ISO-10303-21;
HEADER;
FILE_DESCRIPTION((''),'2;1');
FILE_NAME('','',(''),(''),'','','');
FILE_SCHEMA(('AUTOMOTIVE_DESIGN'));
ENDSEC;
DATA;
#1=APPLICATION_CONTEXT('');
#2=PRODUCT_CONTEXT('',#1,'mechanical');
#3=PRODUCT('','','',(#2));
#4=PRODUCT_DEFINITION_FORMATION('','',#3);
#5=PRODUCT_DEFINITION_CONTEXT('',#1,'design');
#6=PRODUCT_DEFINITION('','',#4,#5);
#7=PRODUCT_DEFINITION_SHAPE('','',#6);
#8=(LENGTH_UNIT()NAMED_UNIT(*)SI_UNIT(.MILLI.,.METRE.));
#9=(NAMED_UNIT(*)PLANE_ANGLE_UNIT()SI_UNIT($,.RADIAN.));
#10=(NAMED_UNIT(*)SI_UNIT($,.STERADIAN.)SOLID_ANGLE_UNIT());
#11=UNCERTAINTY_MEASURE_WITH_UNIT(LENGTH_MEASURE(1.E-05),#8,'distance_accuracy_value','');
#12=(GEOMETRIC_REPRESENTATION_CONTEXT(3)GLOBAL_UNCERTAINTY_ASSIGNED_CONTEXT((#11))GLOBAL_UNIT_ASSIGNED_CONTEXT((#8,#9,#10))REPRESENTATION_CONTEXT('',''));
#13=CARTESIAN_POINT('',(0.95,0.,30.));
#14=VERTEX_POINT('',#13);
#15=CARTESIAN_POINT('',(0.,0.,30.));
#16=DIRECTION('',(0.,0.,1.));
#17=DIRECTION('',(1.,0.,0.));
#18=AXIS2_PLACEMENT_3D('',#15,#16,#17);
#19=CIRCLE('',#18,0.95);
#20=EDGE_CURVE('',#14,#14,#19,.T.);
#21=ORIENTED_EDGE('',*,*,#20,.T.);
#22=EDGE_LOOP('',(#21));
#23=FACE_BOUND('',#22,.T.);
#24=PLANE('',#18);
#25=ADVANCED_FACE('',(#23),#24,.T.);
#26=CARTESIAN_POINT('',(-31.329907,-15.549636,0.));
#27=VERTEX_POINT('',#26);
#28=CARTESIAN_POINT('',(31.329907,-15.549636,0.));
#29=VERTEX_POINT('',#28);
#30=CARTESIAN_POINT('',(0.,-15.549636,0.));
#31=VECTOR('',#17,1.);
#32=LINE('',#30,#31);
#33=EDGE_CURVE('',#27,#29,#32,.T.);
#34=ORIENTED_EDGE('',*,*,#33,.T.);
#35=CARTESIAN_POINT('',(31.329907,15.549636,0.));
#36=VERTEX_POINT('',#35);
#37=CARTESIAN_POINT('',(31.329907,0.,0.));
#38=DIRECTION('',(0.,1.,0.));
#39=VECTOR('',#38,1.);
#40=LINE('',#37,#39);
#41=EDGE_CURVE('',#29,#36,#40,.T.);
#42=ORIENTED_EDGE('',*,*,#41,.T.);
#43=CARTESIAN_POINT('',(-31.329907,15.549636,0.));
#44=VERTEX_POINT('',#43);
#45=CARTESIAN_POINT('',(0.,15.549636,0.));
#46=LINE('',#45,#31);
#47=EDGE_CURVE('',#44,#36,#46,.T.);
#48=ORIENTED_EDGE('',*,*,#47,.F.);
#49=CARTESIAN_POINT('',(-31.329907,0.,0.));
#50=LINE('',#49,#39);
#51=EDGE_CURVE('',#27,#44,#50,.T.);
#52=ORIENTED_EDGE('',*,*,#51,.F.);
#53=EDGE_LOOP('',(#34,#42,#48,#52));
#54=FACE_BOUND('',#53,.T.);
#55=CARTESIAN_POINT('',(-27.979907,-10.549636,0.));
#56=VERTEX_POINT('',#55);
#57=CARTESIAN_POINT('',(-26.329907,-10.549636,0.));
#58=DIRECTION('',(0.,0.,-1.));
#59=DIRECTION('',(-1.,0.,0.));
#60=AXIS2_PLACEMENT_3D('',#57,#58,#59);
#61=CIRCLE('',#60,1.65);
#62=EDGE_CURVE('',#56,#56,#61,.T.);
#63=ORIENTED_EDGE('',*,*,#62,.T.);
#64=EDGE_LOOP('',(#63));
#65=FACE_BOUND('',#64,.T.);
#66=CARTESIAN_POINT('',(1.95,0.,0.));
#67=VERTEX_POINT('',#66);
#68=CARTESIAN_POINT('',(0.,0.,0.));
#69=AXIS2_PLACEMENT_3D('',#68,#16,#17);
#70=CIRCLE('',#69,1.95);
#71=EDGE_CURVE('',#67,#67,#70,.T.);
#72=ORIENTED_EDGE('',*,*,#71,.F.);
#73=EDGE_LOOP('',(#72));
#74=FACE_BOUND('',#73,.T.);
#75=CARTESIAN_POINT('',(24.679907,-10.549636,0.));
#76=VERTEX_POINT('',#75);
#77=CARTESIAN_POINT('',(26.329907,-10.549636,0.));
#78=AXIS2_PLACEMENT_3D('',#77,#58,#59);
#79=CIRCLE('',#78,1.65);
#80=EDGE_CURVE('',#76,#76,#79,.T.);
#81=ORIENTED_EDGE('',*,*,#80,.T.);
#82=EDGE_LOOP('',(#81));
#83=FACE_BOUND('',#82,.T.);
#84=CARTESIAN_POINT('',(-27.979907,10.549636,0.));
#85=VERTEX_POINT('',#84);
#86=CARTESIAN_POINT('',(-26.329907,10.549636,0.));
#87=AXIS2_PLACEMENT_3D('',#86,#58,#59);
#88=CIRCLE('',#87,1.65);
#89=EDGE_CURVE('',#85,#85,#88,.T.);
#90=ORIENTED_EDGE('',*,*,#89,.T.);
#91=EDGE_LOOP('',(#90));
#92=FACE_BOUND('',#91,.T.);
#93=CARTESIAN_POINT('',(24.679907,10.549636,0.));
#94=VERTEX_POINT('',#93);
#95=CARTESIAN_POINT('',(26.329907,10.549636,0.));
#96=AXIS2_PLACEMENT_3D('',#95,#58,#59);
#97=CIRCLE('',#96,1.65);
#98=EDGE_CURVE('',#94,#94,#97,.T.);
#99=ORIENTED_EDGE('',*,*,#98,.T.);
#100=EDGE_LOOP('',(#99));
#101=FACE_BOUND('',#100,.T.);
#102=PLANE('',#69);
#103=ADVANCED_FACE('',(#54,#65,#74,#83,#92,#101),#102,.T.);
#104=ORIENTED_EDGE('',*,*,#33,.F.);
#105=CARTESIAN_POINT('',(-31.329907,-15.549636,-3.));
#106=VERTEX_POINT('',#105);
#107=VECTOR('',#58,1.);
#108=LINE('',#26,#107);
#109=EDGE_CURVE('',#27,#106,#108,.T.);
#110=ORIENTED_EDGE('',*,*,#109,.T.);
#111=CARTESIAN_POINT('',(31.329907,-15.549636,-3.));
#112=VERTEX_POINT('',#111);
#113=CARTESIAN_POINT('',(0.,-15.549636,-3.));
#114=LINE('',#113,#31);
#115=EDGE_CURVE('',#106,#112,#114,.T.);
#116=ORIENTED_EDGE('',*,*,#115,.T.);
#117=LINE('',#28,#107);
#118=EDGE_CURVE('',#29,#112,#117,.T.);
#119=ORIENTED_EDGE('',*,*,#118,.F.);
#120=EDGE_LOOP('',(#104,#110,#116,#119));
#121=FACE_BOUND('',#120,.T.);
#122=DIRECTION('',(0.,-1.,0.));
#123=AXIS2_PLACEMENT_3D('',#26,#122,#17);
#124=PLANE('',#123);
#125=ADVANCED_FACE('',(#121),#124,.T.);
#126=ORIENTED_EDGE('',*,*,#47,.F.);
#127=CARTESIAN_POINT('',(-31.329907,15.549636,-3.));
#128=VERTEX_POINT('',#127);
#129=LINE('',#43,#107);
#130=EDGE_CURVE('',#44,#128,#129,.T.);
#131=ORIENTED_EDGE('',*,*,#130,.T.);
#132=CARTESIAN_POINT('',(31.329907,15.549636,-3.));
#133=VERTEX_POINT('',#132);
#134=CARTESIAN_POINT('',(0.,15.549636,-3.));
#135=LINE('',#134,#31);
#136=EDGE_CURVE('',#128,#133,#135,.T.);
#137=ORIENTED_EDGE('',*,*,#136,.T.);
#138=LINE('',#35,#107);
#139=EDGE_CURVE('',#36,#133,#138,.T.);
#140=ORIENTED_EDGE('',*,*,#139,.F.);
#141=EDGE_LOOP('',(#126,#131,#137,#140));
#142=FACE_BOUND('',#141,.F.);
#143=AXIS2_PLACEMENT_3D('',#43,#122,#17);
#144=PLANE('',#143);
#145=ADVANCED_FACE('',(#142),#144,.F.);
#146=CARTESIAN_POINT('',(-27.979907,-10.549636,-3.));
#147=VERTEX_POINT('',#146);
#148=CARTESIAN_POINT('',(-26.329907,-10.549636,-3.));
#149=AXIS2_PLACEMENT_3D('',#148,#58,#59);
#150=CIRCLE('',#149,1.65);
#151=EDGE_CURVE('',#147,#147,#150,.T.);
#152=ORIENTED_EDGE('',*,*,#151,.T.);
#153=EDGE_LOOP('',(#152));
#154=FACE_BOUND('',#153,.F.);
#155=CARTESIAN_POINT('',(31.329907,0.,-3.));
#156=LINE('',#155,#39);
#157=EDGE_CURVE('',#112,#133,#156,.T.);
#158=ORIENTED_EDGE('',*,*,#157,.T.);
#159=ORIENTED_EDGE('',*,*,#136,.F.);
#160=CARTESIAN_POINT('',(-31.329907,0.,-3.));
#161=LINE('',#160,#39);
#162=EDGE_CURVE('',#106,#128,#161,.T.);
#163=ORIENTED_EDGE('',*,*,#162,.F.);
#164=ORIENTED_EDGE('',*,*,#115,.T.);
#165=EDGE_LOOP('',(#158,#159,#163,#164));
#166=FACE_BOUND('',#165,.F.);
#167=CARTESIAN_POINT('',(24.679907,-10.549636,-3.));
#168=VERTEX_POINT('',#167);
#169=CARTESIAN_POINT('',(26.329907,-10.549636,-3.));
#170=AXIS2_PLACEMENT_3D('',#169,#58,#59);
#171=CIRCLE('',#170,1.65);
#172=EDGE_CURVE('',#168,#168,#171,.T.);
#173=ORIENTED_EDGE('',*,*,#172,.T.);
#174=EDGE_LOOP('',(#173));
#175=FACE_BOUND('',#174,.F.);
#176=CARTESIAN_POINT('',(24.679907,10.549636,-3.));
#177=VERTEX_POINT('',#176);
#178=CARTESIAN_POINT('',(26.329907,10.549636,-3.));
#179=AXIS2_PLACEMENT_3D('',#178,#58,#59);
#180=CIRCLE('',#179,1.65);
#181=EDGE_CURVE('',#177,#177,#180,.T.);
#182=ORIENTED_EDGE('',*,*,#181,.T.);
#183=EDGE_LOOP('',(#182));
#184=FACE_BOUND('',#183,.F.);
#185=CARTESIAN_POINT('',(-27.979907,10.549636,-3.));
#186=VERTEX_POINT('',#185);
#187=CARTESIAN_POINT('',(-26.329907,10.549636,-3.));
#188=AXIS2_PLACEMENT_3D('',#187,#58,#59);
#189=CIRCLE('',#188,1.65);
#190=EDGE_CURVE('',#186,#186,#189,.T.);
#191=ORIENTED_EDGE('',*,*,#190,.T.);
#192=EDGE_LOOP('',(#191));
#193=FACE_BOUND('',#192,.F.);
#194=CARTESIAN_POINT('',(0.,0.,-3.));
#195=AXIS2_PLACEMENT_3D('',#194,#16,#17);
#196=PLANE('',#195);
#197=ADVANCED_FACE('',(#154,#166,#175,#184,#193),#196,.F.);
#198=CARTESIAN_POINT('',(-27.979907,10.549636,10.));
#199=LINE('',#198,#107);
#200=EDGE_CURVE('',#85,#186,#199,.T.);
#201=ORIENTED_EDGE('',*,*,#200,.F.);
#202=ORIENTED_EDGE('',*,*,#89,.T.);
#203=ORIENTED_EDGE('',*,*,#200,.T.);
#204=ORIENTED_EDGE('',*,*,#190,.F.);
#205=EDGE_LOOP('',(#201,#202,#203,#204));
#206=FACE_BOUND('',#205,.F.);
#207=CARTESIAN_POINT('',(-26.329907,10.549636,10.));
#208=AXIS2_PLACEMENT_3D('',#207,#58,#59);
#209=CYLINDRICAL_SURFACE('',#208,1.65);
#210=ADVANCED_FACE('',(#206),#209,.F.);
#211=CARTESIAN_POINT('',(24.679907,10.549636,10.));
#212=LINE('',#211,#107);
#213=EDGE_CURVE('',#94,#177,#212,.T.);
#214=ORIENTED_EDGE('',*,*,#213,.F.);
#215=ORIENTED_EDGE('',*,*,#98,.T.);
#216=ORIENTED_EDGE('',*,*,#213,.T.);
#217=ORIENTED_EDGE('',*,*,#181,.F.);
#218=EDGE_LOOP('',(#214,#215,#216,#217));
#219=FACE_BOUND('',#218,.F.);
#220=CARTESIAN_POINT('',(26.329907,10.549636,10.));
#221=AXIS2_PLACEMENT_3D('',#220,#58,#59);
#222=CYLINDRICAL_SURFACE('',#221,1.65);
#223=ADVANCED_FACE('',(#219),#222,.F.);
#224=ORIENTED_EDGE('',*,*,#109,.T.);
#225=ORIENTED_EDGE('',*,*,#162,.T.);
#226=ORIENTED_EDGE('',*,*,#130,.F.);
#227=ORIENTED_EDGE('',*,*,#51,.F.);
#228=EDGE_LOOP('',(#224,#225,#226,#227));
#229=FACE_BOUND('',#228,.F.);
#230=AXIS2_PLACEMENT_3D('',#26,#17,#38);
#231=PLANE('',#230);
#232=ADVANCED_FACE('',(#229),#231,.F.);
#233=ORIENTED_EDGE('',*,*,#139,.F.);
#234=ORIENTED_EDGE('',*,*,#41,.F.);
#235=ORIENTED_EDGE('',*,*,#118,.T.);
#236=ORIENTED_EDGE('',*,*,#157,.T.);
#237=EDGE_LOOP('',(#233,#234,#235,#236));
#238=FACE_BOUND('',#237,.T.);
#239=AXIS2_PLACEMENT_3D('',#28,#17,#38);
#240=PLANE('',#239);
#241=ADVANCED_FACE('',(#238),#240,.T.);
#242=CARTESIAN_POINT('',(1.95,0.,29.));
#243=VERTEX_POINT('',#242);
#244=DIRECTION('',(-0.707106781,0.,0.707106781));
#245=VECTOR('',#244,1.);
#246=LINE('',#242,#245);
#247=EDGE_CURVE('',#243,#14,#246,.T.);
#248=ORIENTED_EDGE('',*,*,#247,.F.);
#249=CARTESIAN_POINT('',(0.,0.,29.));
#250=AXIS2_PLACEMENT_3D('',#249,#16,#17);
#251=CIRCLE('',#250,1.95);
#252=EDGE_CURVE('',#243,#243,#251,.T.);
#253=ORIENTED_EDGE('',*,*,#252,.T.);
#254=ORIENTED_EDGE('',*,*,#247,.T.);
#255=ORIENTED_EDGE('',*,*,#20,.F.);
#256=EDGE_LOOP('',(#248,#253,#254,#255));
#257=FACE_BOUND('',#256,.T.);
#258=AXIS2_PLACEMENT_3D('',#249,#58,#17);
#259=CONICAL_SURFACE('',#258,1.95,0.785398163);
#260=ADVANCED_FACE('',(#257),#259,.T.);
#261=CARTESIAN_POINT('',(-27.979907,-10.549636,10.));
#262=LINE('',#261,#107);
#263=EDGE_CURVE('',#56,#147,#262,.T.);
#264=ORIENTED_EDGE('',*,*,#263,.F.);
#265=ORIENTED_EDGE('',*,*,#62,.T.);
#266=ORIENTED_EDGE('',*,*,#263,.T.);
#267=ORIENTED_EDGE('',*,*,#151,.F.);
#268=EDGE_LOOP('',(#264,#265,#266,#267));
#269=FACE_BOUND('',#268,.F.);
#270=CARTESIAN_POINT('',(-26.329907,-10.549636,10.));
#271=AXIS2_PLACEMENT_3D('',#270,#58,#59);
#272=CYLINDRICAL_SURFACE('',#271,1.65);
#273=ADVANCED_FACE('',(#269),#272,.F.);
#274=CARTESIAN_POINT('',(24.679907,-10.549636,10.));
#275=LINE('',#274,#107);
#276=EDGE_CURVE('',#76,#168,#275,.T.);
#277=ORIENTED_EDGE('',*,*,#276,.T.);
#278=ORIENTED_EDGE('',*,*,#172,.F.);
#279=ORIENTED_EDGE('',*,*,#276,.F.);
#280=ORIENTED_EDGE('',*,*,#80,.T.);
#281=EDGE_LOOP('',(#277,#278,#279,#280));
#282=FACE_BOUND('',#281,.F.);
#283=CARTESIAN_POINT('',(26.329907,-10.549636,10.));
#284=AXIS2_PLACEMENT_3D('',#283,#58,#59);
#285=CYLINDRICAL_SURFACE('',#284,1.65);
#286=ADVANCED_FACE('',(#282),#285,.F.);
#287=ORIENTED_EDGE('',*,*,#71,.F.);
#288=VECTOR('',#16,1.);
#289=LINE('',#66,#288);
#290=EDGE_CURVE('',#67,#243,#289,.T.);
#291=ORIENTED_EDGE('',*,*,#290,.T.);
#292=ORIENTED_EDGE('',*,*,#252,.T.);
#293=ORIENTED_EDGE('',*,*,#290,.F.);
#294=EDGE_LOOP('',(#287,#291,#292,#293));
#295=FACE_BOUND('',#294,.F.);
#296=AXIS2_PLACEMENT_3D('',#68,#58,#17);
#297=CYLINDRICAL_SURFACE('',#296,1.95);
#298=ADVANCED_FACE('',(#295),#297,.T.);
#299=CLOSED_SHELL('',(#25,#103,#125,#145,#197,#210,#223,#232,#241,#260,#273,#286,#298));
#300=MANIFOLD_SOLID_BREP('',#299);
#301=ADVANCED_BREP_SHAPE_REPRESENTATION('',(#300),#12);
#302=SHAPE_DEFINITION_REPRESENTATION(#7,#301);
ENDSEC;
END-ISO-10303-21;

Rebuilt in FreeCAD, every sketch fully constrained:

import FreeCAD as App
import Part
import Sketcher

V = App.Vector


def edges_at(feature, points):
    """Names of the edges that pass closest to the given points."""
    edges = feature.Shape.Edges
    near = lambda p: min(range(len(edges)), key=lambda i: edges[i].distToShape(Part.Vertex(*p))[0])
    return sorted({f"Edge{near(p) + 1}" for p in points})

doc = App.newDocument("Part")
body = doc.addObject("PartDesign::Body", "Body")

# Sketch on XY plane
sketch1 = body.newObject("Sketcher::SketchObject", "Sketch")
sketch1.AttachmentSupport = (doc.getObject("XY_Plane"), [""])
sketch1.MapMode = "FlatFace"
sketch1.addGeometry(Part.Circle(V(0, 0, 0), V(0, 0, 1), 1.9), False)
sketch1.addConstraint([
    Sketcher.Constraint("Coincident", 0, 3, -1, 1),
    Sketcher.Constraint("Diameter", 0, 3.9),
])
pad1 = body.newObject("PartDesign::Pad", "Pad")
pad1.Profile = sketch1
pad1.Length = 30
doc.recompute()

chamfer = body.newObject("PartDesign::Chamfer", "Chamfer")
chamfer.Base = (pad1, edges_at(pad1, [(-1.95, 0, 30)]))
chamfer.Size = 1

# Sketch on XY plane
sketch2 = body.newObject("Sketcher::SketchObject", "Sketch001")
sketch2.AttachmentSupport = (doc.getObject("XY_Plane"), [""])
sketch2.MapMode = "FlatFace"
sketch2.addGeometry([
    Part.LineSegment(V(-31, 16, 0), V(-31, -16, 0)),
    Part.LineSegment(V(-31, -16, 0), V(31, -16, 0)),
    Part.LineSegment(V(31, -16, 0), V(31, 16, 0)),
    Part.LineSegment(V(31, 16, 0), V(-31, 16, 0)),
], False)
sketch2.addConstraint([
    Sketcher.Constraint("Coincident", 0, 2, 1, 1),
    Sketcher.Constraint("Coincident", 1, 2, 2, 1),
    Sketcher.Constraint("Coincident", 2, 2, 3, 1),
    Sketcher.Constraint("Coincident", 3, 2, 0, 1),
    Sketcher.Constraint("Vertical", 0),
    Sketcher.Constraint("Horizontal", 1),
    Sketcher.Constraint("Vertical", 2),
    Sketcher.Constraint("Horizontal", 3),
    Sketcher.Constraint("Symmetric", 0, 2, 2, 2, -1, 1),
    Sketcher.Constraint("DistanceX", 1, 1, 1, 2, 62.659815),
    Sketcher.Constraint("DistanceY", 0, 2, 0, 1, 31.099273),
])
pad2 = body.newObject("PartDesign::Pad", "Pad001")
pad2.Profile = sketch2
pad2.Length = 3
pad2.Reversed = True

# Sketch on XY plane
sketch3 = body.newObject("Sketcher::SketchObject", "Sketch002")
sketch3.AttachmentSupport = (doc.getObject("XY_Plane"), [""])
sketch3.MapMode = "FlatFace"
sketch3.addGeometry([
    Part.Circle(V(-26.3, 10.5, 0), V(0, 0, 1), 1.6),
    Part.Circle(V(26.3, 10.5, 0), V(0, 0, 1), 1.6),
    Part.Circle(V(26.3, -10.5, 0), V(0, 0, 1), 1.6),
    Part.Circle(V(-26.3, -10.5, 0), V(0, 0, 1), 1.6),
], False)
sketch3.addConstraint([
    Sketcher.Constraint("Equal", 0, 1),
    Sketcher.Constraint("Equal", 1, 2),
    Sketcher.Constraint("Equal", 2, 3),
    Sketcher.Constraint("Symmetric", 0, 3, 2, 3, -1, 1),
    Sketcher.Constraint("Symmetric", 1, 3, 3, 3, -1, 1),
    Sketcher.Constraint("Symmetric", 0, 3, 1, 3, -2),
    Sketcher.Constraint("Diameter", 0, 3.3),
    Sketcher.Constraint("DistanceX", 0, 3, -1, 1, 26.329907),
    Sketcher.Constraint("DistanceY", -1, 1, 0, 3, 10.549636),
])
doc.recompute()
hole = body.newObject("PartDesign::Hole", "Hole")
hole.Profile = sketch3
hole.ThreadType = "None"
hole.Diameter = 3.3
hole.DepthType = "Dimension"
hole.Depth = 10
hole.DrillPoint = "Angled"
hole.DrillPointAngle = 118

doc.recompute()
